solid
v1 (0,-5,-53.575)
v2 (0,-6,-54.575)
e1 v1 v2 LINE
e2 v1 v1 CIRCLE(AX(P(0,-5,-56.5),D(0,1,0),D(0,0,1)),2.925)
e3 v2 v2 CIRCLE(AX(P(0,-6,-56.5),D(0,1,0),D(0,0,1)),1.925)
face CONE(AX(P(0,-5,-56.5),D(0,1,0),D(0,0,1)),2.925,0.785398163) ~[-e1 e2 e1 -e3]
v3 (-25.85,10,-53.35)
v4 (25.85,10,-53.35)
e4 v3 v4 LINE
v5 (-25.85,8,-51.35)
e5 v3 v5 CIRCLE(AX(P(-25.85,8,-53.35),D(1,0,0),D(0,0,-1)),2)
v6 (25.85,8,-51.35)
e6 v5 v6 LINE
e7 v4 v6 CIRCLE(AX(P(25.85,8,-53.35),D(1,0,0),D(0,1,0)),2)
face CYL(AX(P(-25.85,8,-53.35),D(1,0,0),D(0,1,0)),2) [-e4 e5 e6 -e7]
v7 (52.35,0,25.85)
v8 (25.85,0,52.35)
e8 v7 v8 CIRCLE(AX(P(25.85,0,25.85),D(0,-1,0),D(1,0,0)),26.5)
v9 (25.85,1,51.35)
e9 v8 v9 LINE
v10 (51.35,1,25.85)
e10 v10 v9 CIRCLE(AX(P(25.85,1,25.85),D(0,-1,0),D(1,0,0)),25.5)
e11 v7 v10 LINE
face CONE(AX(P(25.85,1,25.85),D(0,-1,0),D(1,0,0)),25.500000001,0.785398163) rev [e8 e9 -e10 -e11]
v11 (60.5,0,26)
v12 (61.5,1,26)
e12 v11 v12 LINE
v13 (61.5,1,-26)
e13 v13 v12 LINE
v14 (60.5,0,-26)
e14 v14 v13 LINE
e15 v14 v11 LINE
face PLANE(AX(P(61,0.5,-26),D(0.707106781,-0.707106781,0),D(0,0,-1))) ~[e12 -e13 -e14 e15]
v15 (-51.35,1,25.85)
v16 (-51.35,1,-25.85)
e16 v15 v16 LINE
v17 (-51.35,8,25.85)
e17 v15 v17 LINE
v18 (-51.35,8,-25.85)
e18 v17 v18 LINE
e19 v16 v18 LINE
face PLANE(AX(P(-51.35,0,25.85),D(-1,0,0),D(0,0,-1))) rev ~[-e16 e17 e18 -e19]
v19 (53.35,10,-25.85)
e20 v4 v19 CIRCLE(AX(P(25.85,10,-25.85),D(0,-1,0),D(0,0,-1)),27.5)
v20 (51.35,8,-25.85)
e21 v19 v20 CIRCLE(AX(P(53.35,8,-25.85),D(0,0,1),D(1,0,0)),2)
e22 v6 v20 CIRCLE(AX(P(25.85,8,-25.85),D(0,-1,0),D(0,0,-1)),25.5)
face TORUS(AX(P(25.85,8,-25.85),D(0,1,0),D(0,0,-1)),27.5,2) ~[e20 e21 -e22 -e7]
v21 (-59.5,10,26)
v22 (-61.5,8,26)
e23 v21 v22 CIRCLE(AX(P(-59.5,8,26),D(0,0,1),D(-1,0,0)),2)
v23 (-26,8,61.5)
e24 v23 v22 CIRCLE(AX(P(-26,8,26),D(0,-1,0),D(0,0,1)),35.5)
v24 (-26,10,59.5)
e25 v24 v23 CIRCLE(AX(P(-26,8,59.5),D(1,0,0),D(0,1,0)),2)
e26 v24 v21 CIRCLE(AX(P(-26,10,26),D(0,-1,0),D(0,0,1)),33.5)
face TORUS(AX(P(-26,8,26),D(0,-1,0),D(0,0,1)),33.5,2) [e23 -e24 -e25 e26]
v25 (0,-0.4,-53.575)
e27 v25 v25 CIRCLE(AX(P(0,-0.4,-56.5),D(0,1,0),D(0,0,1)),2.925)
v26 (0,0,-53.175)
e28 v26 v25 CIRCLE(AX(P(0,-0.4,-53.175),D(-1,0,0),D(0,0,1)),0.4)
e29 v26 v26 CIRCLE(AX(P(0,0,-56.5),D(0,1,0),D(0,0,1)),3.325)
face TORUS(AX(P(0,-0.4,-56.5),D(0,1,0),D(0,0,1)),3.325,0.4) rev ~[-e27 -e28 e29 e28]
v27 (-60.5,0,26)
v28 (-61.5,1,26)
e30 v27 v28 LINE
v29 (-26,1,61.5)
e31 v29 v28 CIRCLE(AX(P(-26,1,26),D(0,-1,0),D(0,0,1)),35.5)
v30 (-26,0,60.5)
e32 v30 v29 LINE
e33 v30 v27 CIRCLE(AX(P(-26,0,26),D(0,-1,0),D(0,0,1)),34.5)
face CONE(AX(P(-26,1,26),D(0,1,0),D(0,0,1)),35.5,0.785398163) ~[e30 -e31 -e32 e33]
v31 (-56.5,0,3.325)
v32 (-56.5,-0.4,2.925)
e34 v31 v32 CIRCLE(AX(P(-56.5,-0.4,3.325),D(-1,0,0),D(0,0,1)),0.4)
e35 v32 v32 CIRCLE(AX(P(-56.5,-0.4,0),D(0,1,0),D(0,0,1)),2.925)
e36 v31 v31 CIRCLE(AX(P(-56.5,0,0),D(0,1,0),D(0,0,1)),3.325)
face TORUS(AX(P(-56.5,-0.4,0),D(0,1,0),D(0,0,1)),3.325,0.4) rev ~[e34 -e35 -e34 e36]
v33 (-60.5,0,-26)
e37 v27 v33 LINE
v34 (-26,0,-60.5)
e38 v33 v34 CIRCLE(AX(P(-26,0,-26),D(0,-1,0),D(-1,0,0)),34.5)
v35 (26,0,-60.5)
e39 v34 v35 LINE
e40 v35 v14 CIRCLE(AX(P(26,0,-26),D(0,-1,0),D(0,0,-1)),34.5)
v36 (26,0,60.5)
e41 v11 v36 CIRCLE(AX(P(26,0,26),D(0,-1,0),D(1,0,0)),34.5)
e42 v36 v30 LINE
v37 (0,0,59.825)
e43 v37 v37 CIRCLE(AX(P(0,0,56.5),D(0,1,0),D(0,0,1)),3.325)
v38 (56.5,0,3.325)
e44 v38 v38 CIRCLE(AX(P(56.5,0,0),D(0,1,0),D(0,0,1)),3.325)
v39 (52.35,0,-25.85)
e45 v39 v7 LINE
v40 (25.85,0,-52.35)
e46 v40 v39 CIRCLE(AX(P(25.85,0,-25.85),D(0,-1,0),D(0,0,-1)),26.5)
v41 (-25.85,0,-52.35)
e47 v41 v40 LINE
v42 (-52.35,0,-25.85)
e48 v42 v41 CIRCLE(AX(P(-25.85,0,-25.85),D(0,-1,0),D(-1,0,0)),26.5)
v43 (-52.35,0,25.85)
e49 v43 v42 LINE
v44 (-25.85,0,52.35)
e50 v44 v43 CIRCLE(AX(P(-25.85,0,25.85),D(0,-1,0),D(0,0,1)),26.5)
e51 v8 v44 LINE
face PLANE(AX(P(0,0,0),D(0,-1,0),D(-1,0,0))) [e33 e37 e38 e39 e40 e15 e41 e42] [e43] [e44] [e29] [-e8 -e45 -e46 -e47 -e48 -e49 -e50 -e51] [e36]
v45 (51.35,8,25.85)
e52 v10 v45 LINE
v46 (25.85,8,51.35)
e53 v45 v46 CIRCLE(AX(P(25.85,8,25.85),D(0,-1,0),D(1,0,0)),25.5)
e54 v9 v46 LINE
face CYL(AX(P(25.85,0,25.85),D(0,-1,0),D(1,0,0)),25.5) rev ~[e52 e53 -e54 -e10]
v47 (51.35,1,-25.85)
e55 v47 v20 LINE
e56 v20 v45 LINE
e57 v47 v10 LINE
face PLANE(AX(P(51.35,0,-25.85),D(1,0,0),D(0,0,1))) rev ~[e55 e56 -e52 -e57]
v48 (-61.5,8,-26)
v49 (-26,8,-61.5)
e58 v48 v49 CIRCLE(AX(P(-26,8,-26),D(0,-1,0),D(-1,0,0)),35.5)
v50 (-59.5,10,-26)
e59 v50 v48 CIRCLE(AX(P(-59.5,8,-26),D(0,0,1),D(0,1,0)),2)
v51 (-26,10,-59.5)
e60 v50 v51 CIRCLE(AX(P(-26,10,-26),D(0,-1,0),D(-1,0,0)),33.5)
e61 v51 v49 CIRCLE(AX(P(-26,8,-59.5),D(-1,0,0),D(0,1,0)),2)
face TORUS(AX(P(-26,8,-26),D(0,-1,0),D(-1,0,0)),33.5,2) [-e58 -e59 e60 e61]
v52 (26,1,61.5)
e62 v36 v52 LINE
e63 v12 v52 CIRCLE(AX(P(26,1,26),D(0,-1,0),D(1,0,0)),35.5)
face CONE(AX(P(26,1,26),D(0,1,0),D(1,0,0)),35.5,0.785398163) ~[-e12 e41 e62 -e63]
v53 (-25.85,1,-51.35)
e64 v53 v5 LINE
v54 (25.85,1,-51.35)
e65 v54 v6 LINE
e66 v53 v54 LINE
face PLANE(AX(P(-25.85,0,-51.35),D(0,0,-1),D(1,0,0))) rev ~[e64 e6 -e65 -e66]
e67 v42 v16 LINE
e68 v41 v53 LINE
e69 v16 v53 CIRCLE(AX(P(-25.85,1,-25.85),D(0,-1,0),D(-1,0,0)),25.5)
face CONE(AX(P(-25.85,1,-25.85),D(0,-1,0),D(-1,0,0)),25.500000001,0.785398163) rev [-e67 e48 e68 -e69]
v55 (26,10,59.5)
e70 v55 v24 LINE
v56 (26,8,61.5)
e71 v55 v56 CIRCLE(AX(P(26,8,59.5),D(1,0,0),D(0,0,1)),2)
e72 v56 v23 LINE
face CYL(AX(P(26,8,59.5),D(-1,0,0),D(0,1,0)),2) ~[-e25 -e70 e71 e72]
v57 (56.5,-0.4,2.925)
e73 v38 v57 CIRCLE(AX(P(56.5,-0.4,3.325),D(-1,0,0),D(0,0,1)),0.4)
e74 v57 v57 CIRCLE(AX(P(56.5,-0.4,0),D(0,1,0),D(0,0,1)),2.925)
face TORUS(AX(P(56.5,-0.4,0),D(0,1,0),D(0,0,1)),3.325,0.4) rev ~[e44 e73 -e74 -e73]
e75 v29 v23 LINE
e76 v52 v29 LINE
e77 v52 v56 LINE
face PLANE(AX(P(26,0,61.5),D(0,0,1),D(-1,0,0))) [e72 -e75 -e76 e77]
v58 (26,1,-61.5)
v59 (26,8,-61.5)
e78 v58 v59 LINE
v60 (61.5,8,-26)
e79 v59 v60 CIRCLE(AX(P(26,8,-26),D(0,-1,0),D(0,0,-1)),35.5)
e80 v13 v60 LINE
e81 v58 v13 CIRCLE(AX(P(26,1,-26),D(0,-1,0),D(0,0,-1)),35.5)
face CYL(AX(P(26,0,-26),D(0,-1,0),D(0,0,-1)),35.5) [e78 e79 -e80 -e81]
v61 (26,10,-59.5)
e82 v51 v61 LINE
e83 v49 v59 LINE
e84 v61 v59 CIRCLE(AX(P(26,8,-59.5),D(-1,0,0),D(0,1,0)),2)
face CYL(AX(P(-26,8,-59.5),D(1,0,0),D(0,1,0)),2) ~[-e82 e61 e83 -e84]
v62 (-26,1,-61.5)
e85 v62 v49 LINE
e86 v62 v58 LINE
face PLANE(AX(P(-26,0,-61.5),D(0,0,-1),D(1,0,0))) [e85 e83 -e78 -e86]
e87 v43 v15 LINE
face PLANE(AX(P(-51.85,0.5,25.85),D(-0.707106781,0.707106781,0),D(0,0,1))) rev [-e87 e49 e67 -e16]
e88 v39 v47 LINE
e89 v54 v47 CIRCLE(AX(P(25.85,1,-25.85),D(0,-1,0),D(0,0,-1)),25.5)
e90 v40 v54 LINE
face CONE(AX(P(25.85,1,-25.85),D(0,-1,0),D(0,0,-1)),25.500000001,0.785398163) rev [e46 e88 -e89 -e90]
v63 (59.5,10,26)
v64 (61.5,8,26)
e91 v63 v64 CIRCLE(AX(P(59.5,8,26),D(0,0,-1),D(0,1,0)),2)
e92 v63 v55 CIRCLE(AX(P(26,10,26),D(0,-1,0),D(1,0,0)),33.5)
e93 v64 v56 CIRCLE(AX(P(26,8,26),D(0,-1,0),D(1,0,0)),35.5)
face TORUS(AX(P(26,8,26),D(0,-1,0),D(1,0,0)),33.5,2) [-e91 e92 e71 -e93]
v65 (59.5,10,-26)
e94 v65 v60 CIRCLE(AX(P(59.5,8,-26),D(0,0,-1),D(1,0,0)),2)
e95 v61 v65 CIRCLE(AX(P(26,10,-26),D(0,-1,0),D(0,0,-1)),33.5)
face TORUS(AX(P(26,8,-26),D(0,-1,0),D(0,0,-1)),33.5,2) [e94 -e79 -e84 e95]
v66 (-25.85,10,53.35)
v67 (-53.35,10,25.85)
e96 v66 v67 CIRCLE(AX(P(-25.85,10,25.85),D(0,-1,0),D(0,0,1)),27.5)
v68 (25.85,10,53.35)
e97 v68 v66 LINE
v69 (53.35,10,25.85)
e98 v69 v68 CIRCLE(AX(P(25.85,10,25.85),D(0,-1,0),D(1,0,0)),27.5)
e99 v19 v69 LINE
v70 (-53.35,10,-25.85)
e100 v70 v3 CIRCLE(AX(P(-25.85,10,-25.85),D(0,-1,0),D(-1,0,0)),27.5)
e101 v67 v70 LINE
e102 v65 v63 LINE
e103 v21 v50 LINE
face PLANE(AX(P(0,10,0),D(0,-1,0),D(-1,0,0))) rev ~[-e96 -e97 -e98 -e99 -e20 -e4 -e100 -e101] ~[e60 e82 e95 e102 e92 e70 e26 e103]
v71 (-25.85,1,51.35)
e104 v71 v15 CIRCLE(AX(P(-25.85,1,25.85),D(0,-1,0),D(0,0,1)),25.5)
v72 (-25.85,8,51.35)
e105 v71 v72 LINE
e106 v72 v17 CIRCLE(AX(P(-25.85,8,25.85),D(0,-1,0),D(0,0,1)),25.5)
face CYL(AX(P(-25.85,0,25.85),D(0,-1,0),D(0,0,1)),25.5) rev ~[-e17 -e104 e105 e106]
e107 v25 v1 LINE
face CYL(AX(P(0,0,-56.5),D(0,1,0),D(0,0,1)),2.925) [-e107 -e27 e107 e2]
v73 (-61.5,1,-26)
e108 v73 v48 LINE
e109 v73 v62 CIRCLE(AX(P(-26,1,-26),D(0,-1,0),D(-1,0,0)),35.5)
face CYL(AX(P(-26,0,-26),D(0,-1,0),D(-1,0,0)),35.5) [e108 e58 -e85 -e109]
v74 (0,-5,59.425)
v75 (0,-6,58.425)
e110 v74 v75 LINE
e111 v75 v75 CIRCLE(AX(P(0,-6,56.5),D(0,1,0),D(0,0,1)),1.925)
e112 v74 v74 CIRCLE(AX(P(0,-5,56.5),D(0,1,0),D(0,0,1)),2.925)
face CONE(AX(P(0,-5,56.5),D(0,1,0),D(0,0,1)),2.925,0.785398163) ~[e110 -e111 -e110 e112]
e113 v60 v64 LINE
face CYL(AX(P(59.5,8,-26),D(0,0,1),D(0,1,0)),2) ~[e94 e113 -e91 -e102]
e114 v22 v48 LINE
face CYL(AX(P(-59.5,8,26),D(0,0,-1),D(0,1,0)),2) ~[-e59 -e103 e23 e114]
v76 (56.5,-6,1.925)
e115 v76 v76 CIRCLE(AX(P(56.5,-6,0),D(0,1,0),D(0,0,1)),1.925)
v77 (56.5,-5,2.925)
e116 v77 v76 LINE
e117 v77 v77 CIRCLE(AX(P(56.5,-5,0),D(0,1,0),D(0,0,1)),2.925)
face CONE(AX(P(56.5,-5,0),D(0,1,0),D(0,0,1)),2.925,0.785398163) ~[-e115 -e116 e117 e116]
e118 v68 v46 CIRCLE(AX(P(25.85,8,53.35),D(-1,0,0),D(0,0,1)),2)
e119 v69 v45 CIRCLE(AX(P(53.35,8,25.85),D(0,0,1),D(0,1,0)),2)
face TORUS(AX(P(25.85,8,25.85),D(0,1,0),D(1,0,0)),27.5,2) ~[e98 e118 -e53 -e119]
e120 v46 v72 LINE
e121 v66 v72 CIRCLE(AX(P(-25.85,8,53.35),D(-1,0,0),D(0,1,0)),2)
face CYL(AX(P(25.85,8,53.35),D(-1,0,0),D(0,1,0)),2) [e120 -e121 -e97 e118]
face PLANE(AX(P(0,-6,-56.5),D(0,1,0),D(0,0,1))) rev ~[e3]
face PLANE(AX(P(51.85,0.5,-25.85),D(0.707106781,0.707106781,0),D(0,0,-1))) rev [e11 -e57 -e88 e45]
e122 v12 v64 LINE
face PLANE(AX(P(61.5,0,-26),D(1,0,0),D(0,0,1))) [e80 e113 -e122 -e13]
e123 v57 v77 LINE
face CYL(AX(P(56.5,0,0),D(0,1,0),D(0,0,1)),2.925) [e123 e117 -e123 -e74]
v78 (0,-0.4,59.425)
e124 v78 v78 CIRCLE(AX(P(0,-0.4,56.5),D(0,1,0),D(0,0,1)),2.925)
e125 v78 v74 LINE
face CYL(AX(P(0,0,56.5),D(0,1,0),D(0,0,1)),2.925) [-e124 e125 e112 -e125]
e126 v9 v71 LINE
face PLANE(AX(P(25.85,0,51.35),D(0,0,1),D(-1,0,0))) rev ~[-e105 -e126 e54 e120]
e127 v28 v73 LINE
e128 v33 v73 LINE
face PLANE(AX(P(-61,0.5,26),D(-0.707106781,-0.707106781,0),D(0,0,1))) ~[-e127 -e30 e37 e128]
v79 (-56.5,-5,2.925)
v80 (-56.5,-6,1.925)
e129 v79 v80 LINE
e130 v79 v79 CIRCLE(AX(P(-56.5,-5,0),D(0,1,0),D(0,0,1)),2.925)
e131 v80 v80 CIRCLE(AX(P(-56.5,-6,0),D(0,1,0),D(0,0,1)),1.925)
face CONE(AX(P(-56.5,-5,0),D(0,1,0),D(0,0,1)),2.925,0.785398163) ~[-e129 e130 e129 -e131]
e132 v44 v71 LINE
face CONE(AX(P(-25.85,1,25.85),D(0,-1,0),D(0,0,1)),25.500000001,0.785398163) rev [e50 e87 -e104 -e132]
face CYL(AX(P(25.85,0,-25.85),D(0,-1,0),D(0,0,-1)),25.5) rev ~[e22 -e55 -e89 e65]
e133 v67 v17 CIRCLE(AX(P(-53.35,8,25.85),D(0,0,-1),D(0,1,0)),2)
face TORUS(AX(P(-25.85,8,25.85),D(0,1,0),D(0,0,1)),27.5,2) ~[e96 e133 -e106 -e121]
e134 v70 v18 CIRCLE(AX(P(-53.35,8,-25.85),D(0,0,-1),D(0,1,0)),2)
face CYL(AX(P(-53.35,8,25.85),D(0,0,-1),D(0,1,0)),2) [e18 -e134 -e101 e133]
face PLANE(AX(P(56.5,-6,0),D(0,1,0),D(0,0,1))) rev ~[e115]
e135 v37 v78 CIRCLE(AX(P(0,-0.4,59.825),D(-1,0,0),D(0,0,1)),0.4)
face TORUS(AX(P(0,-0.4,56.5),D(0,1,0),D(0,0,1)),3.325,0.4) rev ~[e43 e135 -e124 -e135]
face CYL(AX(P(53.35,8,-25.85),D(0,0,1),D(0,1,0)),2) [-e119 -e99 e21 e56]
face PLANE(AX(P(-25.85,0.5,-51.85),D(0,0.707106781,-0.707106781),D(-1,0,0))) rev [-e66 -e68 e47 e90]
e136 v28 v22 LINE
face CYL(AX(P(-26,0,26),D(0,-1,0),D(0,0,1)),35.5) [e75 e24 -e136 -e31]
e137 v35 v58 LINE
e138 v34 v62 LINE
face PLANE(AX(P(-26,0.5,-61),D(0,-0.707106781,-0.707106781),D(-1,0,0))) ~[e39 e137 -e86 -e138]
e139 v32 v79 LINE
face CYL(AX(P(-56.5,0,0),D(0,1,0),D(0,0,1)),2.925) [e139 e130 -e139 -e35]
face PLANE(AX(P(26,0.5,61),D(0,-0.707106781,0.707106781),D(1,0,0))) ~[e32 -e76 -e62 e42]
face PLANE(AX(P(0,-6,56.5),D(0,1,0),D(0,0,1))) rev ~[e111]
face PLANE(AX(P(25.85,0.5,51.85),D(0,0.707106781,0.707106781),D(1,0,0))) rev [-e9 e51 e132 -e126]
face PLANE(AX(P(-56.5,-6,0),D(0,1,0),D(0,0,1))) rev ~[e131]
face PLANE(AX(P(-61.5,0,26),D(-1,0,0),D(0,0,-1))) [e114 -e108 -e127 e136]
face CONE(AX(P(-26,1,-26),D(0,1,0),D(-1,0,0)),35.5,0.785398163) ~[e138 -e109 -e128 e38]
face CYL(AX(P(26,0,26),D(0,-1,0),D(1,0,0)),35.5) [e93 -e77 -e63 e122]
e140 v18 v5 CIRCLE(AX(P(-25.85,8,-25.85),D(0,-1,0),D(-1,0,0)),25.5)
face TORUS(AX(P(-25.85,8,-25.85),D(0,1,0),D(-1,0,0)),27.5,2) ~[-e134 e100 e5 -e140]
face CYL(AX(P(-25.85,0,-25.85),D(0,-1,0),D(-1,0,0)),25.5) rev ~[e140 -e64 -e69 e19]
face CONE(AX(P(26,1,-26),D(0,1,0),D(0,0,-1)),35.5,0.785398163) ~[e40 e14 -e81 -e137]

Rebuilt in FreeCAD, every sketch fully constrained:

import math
import FreeCAD as App
import Part
import Sketcher
from FreeCAD import Vector
Q = App.Units.Quantity


def edges_at(feature, points):
    """Names of the edges that pass closest to the given points."""
    edges = feature.Shape.Edges
    near = lambda p: min(range(len(edges)), key=lambda i: edges[i].distToShape(Part.Vertex(*p))[0])
    return sorted({f"Edge{near(p) + 1}" for p in points})

doc = App.newDocument("Part")
body = doc.addObject("PartDesign::Body", "Body")

sketch1 = doc.addObject("Sketcher::SketchObject", "Sketch")
body.addObject(sketch1)
sketch1.AttachmentSupport = (doc.XZ_Plane, [""])
sketch1.MapMode = "FlatFace"
sketch1.addGeometry(Part.LineSegment(Vector(-26, 62, 0), Vector(26, 62, 0)), False)
sketch1.addGeometry(Part.ArcOfCircle(Part.Circle(Vector(26, 26, 0), Vector(0, 0, 1), 36), math.radians(0), math.radians(90)), False)
sketch1.addGeometry(Part.LineSegment(Vector(62, 26, 0), Vector(62, -26, 0)), False)
sketch1.addGeometry(Part.ArcOfCircle(Part.Circle(Vector(26, -26, 0), Vector(0, 0, 1), 36), math.radians(-90), math.radians(0)), False)
sketch1.addGeometry(Part.LineSegment(Vector(26, -62, 0), Vector(-26, -62, 0)), False)
sketch1.addGeometry(Part.ArcOfCircle(Part.Circle(Vector(-26, -26, 0), Vector(0, 0, 1), 36), math.radians(180), math.radians(270)), False)
sketch1.addGeometry(Part.LineSegment(Vector(-62, -26, 0), Vector(-62, 26, 0)), False)
sketch1.addGeometry(Part.ArcOfCircle(Part.Circle(Vector(-26, 26, 0), Vector(0, 0, 1), 36), math.radians(90), math.radians(180)), False)
sketch1.addGeometry(Part.LineSegment(Vector(26, 51, 0), Vector(-26, 51, 0)), False)
sketch1.addGeometry(Part.ArcOfCircle(Part.Circle(Vector(-26, 26, 0), Vector(0, 0, 1), 26), math.radians(90), math.radians(180)), False)
sketch1.addGeometry(Part.LineSegment(Vector(-51, 26, 0), Vector(-51, -26, 0)), False)
sketch1.addGeometry(Part.ArcOfCircle(Part.Circle(Vector(-26, -26, 0), Vector(0, 0, 1), 26), math.radians(-180), math.radians(-90)), False)
sketch1.addGeometry(Part.LineSegment(Vector(-26, -51, 0), Vector(26, -51, 0)), False)
sketch1.addGeometry(Part.ArcOfCircle(Part.Circle(Vector(26, -26, 0), Vector(0, 0, 1), 26), math.radians(-90), math.radians(0)), False)
sketch1.addGeometry(Part.LineSegment(Vector(51, -26, 0), Vector(51, 26, 0)), False)
sketch1.addGeometry(Part.ArcOfCircle(Part.Circle(Vector(26, 26, 0), Vector(0, 0, 1), 26), math.radians(0), math.radians(90)), False)
sketch1.addConstraint(Sketcher.Constraint("Tangent", 0, 2, 1, 2))
sketch1.addConstraint(Sketcher.Constraint("Tangent", 1, 1, 2, 1))
sketch1.addConstraint(Sketcher.Constraint("Tangent", 2, 2, 3, 2))
sketch1.addConstraint(Sketcher.Constraint("Tangent", 3, 1, 4, 1))
sketch1.addConstraint(Sketcher.Constraint("Tangent", 4, 2, 5, 2))
sketch1.addConstraint(Sketcher.Constraint("Tangent", 5, 1, 6, 1))
sketch1.addConstraint(Sketcher.Constraint("Tangent", 6, 2, 7, 2))
sketch1.addConstraint(Sketcher.Constraint("Tangent", 7, 1, 0, 1))
sketch1.addConstraint(Sketcher.Constraint("Tangent", 8, 2, 9, 1))
sketch1.addConstraint(Sketcher.Constraint("Tangent", 9, 2, 10, 1))
sketch1.addConstraint(Sketcher.Constraint("Tangent", 10, 2, 11, 1))
sketch1.addConstraint(Sketcher.Constraint("Tangent", 11, 2, 12, 1))
sketch1.addConstraint(Sketcher.Constraint("Tangent", 12, 2, 13, 1))
sketch1.addConstraint(Sketcher.Constraint("Tangent", 13, 2, 14, 1))
sketch1.addConstraint(Sketcher.Constraint("Tangent", 14, 2, 15, 1))
sketch1.addConstraint(Sketcher.Constraint("Tangent", 15, 2, 8, 1))
sketch1.addConstraint(Sketcher.Constraint("Horizontal", 0))
sketch1.addConstraint(Sketcher.Constraint("Vertical", 2))
sketch1.addConstraint(Sketcher.Constraint("Horizontal", 4))
sketch1.addConstraint(Sketcher.Constraint("Vertical", 6))
sketch1.addConstraint(Sketcher.Constraint("Horizontal", 8))
sketch1.addConstraint(Sketcher.Constraint("Vertical", 10))
sketch1.addConstraint(Sketcher.Constraint("Horizontal", 12))
sketch1.addConstraint(Sketcher.Constraint("Vertical", 14))
sketch1.addConstraint(Sketcher.Constraint("Equal", 1, 3))
sketch1.addConstraint(Sketcher.Constraint("Equal", 3, 5))
sketch1.addConstraint(Sketcher.Constraint("Equal", 5, 7))
sketch1.addConstraint(Sketcher.Constraint("Equal", 9, 11))
sketch1.addConstraint(Sketcher.Constraint("Equal", 11, 13))
sketch1.addConstraint(Sketcher.Constraint("Equal", 13, 15))
sketch1.addConstraint(Sketcher.Constraint("Symmetric", 1, 3, 5, 3, -1, 1))
sketch1.addConstraint(Sketcher.Constraint("Symmetric", 9, 3, 13, 3, -1, 1))
sketch1.addConstraint(Sketcher.Constraint("Equal", 4, 2))
sketch1.addConstraint(Sketcher.Constraint("Equal", 12, 10))
sketch1.addConstraint(Sketcher.Constraint("Radius", 1, Q("35.5 mm")))
sketch1.addConstraint(Sketcher.Constraint("Radius", 9, Q("25.5 mm")))
sketch1.addConstraint(Sketcher.Constraint("DistanceX", 0, 1, 0, 2, Q("52 mm")))
sketch1.addConstraint(Sketcher.Constraint("DistanceX", 8, 2, 8, 1, Q("51.7 mm")))
pad1 = doc.addObject("PartDesign::Pad", "Pad")
body.addObject(pad1)
pad1.Profile = sketch1
pad1.Length = 10
pad1.Reversed = True

sketch2 = doc.addObject("Sketcher::SketchObject", "Sketch001")
body.addObject(sketch2)
sketch2.AttachmentSupport = (doc.XZ_Plane, [""])
sketch2.MapMode = "FlatFace"
sketch2.addGeometry(Part.Circle(Vector(0, -56.5, 0), Vector(0, 0, 1), 2.9), False)
sketch2.addGeometry(Part.Circle(Vector(-56.5, 0, 0), Vector(0, 0, 1), 2.9), False)
sketch2.addGeometry(Part.Circle(Vector(0, 56.5, 0), Vector(0, 0, 1), 2.9), False)
sketch2.addGeometry(Part.Circle(Vector(56.5, 0, 0), Vector(0, 0, 1), 2.9), False)
sketch2.addConstraint(Sketcher.Constraint("Equal", 0, 1))
sketch2.addConstraint(Sketcher.Constraint("Equal", 1, 2))
sketch2.addConstraint(Sketcher.Constraint("Equal", 2, 3))
sketch2.addConstraint(Sketcher.Constraint("Symmetric", 0, 3, 2, 3, -1, 1))
sketch2.addConstraint(Sketcher.Constraint("Symmetric", 1, 3, 3, 3, -1, 1))
sketch2.addConstraint(Sketcher.Constraint("PointOnObject", 0, 3, -2))
sketch2.addConstraint(Sketcher.Constraint("PointOnObject", 1, 3, -1))
sketch2.addConstraint(Sketcher.Constraint("Diameter", 0, Q("5.85 mm")))
sketch2.addConstraint(Sketcher.Constraint("DistanceY", 0, 3, 2, 3, Q("113 mm")))
sketch2.addConstraint(Sketcher.Constraint("DistanceX", 1, 3, 3, 3, Q("113 mm")))
pad2 = doc.addObject("PartDesign::Pad", "Pad001")
body.addObject(pad2)
pad2.Profile = sketch2
pad2.Length = 6
doc.recompute()

chamfer = doc.addObject("PartDesign::Chamfer", "Chamfer")
body.addObject(chamfer)
chamfer.Base = (pad2, edges_at(pad2, [
    (-51.102, 0, -51.102),
    (-61.5, 0, 0),
    (-43.881, 0, 43.881),
    (43.881, 0, 43.881),
    (51.35, 0, 0),
    (43.881, 0, -43.881),
    (0, 0, -51.35),
    (-43.881, 0, -43.881),
    (-51.35, 0, 0),
    (0, 0, 51.35),
    (-56.5, -6, -2.925),
    (0, -6, -59.425),
    (0, -6, 53.575),
    (56.5, -6, -2.925),
    (-51.102, 0, 51.102),
    (0, 0, 61.5),
    (51.102, 0, 51.102),
    (61.5, 0, 0),
    (51.102, 0, -51.102),
    (0, 0, -61.5),
]))
chamfer.Size = 1
doc.recompute()

fillet = doc.addObject("PartDesign::Fillet", "Fillet")
body.addObject(fillet)
fillet.Base = (chamfer, edges_at(chamfer, [
    (0, 10, -61.5),
    (51.102, 10, -51.102),
    (61.5, 10, 0),
    (51.102, 10, 51.102),
    (0, 10, 61.5),
    (-51.102, 10, 51.102),
    (-51.35, 10, 0),
    (0, 10, 51.35),
    (-43.881, 10, 43.881),
    (43.881, 10, 43.881),
    (51.35, 10, 0),
    (43.881, 10, -43.881),
    (0, 10, -51.35),
    (-43.881, 10, -43.881),
    (-61.5, 10, 0),
    (-51.102, 10, -51.102),
]))
fillet.Radius = 2
doc.recompute()

fillet2 = doc.addObject("PartDesign::Fillet", "Fillet001")
body.addObject(fillet2)
fillet2.Base = (fillet, edges_at(fillet, [
    (-56.5, 0, -2.925),
    (0, 0, -59.425),
    (0, 0, 53.575),
    (56.5, 0, -2.925),
]))
fillet2.Radius = 0.4

doc.recompute()
